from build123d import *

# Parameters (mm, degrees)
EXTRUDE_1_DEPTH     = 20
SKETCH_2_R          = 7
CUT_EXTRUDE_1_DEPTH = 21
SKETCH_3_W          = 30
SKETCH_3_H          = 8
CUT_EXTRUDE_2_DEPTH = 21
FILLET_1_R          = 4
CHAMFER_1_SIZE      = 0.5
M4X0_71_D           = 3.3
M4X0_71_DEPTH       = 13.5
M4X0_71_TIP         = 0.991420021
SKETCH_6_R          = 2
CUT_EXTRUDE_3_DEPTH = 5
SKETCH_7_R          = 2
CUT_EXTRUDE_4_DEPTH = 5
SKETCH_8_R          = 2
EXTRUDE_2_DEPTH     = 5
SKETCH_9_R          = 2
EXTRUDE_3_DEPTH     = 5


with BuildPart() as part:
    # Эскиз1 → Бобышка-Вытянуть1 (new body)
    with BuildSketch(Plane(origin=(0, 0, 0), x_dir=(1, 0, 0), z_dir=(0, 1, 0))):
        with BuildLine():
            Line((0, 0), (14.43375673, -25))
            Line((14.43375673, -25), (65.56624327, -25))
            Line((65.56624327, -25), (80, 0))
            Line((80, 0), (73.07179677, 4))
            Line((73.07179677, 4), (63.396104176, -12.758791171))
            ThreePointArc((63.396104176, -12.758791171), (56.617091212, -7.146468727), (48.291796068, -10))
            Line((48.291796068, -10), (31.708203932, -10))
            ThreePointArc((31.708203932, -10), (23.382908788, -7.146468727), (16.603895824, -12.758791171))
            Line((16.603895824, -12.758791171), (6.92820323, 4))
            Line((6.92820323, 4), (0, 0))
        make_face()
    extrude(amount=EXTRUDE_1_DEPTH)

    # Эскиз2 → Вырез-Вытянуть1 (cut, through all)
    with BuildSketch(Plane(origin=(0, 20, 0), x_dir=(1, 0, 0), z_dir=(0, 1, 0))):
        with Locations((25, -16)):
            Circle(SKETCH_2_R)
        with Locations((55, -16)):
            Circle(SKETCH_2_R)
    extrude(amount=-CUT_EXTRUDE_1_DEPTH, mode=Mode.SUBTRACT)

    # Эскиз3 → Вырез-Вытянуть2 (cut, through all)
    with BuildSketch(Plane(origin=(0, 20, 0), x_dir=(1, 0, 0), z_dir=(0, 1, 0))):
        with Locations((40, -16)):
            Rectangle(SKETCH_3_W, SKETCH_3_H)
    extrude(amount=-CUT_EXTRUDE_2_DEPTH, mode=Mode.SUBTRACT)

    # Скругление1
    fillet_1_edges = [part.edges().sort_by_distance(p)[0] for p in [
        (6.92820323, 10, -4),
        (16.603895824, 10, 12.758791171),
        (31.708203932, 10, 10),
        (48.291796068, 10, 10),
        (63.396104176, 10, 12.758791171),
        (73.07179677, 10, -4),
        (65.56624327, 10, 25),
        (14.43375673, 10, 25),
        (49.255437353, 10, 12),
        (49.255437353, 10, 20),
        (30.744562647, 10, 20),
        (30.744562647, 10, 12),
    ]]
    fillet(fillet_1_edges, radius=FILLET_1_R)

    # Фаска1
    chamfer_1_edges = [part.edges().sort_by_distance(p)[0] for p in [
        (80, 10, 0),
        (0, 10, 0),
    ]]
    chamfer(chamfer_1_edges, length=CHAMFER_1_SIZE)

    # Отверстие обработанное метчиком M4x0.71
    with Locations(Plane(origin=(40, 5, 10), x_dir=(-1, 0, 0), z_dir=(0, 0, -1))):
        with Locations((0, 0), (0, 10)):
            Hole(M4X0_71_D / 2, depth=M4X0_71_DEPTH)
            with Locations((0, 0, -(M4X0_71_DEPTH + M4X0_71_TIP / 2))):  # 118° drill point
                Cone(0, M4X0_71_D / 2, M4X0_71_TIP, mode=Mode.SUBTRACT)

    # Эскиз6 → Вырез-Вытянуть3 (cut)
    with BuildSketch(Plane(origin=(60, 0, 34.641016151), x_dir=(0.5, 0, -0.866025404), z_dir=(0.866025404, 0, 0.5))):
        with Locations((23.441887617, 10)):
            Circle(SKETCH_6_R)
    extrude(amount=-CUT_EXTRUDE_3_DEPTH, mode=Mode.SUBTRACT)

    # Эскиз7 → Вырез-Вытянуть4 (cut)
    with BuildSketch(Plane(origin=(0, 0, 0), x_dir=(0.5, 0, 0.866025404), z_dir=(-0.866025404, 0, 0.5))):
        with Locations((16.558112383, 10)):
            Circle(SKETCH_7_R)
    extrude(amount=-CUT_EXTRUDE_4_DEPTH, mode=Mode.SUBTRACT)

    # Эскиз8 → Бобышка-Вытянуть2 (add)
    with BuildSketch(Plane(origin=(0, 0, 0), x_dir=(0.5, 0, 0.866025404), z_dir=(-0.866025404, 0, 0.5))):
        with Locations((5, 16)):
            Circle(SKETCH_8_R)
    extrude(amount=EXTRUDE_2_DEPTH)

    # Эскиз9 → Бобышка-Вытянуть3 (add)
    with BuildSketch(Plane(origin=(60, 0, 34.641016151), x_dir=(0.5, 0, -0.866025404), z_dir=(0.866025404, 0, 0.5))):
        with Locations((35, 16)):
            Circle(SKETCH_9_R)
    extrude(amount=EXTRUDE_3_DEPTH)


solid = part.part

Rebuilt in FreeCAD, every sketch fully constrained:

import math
import FreeCAD as App
import Part
import Sketcher
from FreeCAD import Vector
Q = App.Units.Quantity


def edges_at(feature, points):
    """Names of the edges that pass closest to the given points."""
    edges = feature.Shape.Edges
    near = lambda p: min(range(len(edges)), key=lambda i: edges[i].distToShape(Part.Vertex(*p))[0])
    return sorted({f"Edge{near(p) + 1}" for p in points})

doc = App.newDocument("Part")
body = doc.addObject("PartDesign::Body", "Body")

sketch1 = doc.addObject("Sketcher::SketchObject", "Sketch")
body.addObject(sketch1)
sketch1.AttachmentSupport = (doc.XZ_Plane, [""])
sketch1.MapMode = "FlatFace"
sketch1.addGeometry(Part.LineSegment(Vector(0, 0, 0), Vector(14, 25, 0)), False)
sketch1.addGeometry(Part.LineSegment(Vector(14, 25, 0), Vector(66, 25, 0)), False)
sketch1.addGeometry(Part.LineSegment(Vector(66, 25, 0), Vector(80, 0, 0)), False)
sketch1.addGeometry(Part.LineSegment(Vector(80, 0, 0), Vector(73, -4, 0)), False)
sketch1.addGeometry(Part.LineSegment(Vector(73, -4, 0), Vector(63, 13, 0)), False)
sketch1.addGeometry(Part.ArcOfCircle(Part.Circle(Vector(55, 16, 0), Vector(0, 0, 1), 9), math.radians(-138), math.radians(-21)), False)
sketch1.addGeometry(Part.LineSegment(Vector(48, 10, 0), Vector(32, 10, 0)), False)
sketch1.addGeometry(Part.ArcOfCircle(Part.Circle(Vector(25, 16, 0), Vector(0, 0, 1), 9), math.radians(-159), math.radians(-42)), False)
sketch1.addGeometry(Part.LineSegment(Vector(17, 13, 0), Vector(7, -4, 0)), False)
sketch1.addGeometry(Part.LineSegment(Vector(7, -4, 0), Vector(0, 0, 0)), False)
sketch1.addConstraint(Sketcher.Constraint("Coincident", 0, 2, 1, 1))
sketch1.addConstraint(Sketcher.Constraint("Coincident", 1, 2, 2, 1))
sketch1.addConstraint(Sketcher.Constraint("Coincident", 2, 2, 3, 1))
sketch1.addConstraint(Sketcher.Constraint("Coincident", 3, 2, 4, 1))
sketch1.addConstraint(Sketcher.Constraint("Coincident", 4, 2, 5, 2))
sketch1.addConstraint(Sketcher.Constraint("Coincident", 5, 1, 6, 1))
sketch1.addConstraint(Sketcher.Constraint("Coincident", 6, 2, 7, 2))
sketch1.addConstraint(Sketcher.Constraint("Coincident", 7, 1, 8, 1))
sketch1.addConstraint(Sketcher.Constraint("Coincident", 8, 2, 9, 1))
sketch1.addConstraint(Sketcher.Constraint("Coincident", 9, 2, 0, 1))
sketch1.addConstraint(Sketcher.Constraint("Horizontal", 1))
sketch1.addConstraint(Sketcher.Constraint("Horizontal", 6))
sketch1.addConstraint(Sketcher.Constraint("Coincident", 9, 2, -1, 1))
sketch1.addConstraint(Sketcher.Constraint("Equal", 5, 7))
sketch1.addConstraint(Sketcher.Constraint("PointOnObject", 2, 2, -1))
sketch1.addConstraint(Sketcher.Constraint("Perpendicular", 2, 3))
sketch1.addConstraint(Sketcher.Constraint("Perpendicular", 3, 4))
sketch1.addConstraint(Sketcher.Constraint("Parallel", 0, 8))
sketch1.addConstraint(Sketcher.Constraint("Perpendicular", 8, 9))
sketch1.addConstraint(Sketcher.Constraint("Horizontal", 5, 3, 7, 3))
sketch1.addConstraint(Sketcher.Constraint("Horizontal", 4, 2, 7, 1))
sketch1.addConstraint(Sketcher.Constraint("Horizontal", 3, 2, 8, 2))
sketch1.addConstraint(Sketcher.Constraint("Equal", 0, 2))
sketch1.addConstraint(Sketcher.Constraint("Radius", 5, 9.0))
sketch1.addConstraint(Sketcher.Constraint("Angle", 0, Q("60 deg")))
sketch1.addConstraint(Sketcher.Constraint("Distance", 3, 8.0))
sketch1.addConstraint(Sketcher.Constraint("DistanceX", -1, 1, 5, 3, 55.0))
sketch1.addConstraint(Sketcher.Constraint("DistanceY", -1, 1, 5, 3, 16.0))
sketch1.addConstraint(Sketcher.Constraint("DistanceX", -1, 1, 7, 3, 25.0))
sketch1.addConstraint(Sketcher.Constraint("DistanceY", -1, 1, 0, 2, 25.0))
sketch1.addConstraint(Sketcher.Constraint("DistanceY", -1, 1, 5, 1, 10.0))
pad1 = doc.addObject("PartDesign::Pad", "Pad")
body.addObject(pad1)
pad1.Profile = sketch1
pad1.Length = 20
pad1.Reversed = True

sketch2 = doc.addObject("Sketcher::SketchObject", "Sketch001")
body.addObject(sketch2)
sketch2.AttachmentSupport = (doc.XZ_Plane, [""])
sketch2.MapMode = "FlatFace"
sketch2.AttachmentOffset = App.Placement(Vector(0, 0, -20), App.Rotation())
sketch2.addGeometry(Part.Circle(Vector(25, 16, 0), Vector(0, 0, 1), 7), False)
sketch2.addGeometry(Part.Circle(Vector(55, 16, 0), Vector(0, 0, 1), 7), False)
sketch2.addConstraint(Sketcher.Constraint("Equal", 0, 1))
sketch2.addConstraint(Sketcher.Constraint("Horizontal", 0, 3, 1, 3))
sketch2.addConstraint(Sketcher.Constraint("Diameter", 0, 14.0))
sketch2.addConstraint(Sketcher.Constraint("DistanceX", -1, 1, 0, 3, 25.0))
sketch2.addConstraint(Sketcher.Constraint("DistanceY", -1, 1, 0, 3, 16.0))
sketch2.addConstraint(Sketcher.Constraint("DistanceX", -1, 1, 1, 3, 55.0))
pocket1 = doc.addObject("PartDesign::Pocket", "Pocket")
body.addObject(pocket1)
pocket1.Profile = sketch2
pocket1.Type = "ThroughAll"
pocket1.Reversed = True

sketch3 = doc.addObject("Sketcher::SketchObject", "Sketch002")
body.addObject(sketch3)
sketch3.AttachmentSupport = (doc.XZ_Plane, [""])
sketch3.MapMode = "FlatFace"
sketch3.AttachmentOffset = App.Placement(Vector(0, 0, -20), App.Rotation())
sketch3.addGeometry(Part.LineSegment(Vector(25, 12, 0), Vector(25, 20, 0)), False)
sketch3.addGeometry(Part.LineSegment(Vector(25, 20, 0), Vector(55, 20, 0)), False)
sketch3.addGeometry(Part.LineSegment(Vector(55, 20, 0), Vector(55, 12, 0)), False)
sketch3.addGeometry(Part.LineSegment(Vector(55, 12, 0), Vector(25, 12, 0)), False)
sketch3.addConstraint(Sketcher.Constraint("Coincident", 0, 2, 1, 1))
sketch3.addConstraint(Sketcher.Constraint("Coincident", 1, 2, 2, 1))
sketch3.addConstraint(Sketcher.Constraint("Coincident", 2, 2, 3, 1))
sketch3.addConstraint(Sketcher.Constraint("Coincident", 3, 2, 0, 1))
sketch3.addConstraint(Sketcher.Constraint("Vertical", 0))
sketch3.addConstraint(Sketcher.Constraint("Horizontal", 1))
sketch3.addConstraint(Sketcher.Constraint("Vertical", 2))
sketch3.addConstraint(Sketcher.Constraint("Horizontal", 3))
sketch3.addConstraint(Sketcher.Constraint("DistanceX", 1, 1, 1, 2, 30.0))
sketch3.addConstraint(Sketcher.Constraint("DistanceY", 0, 1, 0, 2, 8.0))
sketch3.addConstraint(Sketcher.Constraint("DistanceX", -1, 1, 0, 2, 25.0))
sketch3.addConstraint(Sketcher.Constraint("DistanceY", -1, 1, 0, 2, 20.0))
pocket2 = doc.addObject("PartDesign::Pocket", "Pocket001")
body.addObject(pocket2)
pocket2.Profile = sketch3
pocket2.Type = "ThroughAll"
pocket2.Reversed = True
doc.recompute()

fillet = doc.addObject("PartDesign::Fillet", "Fillet")
body.addObject(fillet)
fillet.Base = (pocket2, edges_at(pocket2, [
    (6.928, 10, -4),
    (16.604, 10, 12.759),
    (31.708, 10, 10),
    (48.292, 10, 10),
    (63.396, 10, 12.759),
    (73.072, 10, -4),
    (65.566, 10, 25),
    (14.434, 10, 25),
    (49.255, 10, 12),
    (49.255, 10, 20),
    (30.745, 10, 20),
    (30.745, 10, 12),
]))
fillet.Radius = 4
doc.recompute()

chamfer = doc.addObject("PartDesign::Chamfer", "Chamfer")
body.addObject(chamfer)
chamfer.Base = (fillet, edges_at(fillet, [(80, 10, 0), (0, 10, 0)]))
chamfer.Size = 0.5

sketch4 = doc.addObject("Sketcher::SketchObject", "Sketch003")
body.addObject(sketch4)
sketch4.AttachmentSupport = (doc.XY_Plane, [""])
sketch4.MapMode = "FlatFace"
sketch4.AttachmentOffset = App.Placement(Vector(0, 0, 10), App.Rotation())
sketch4.addGeometry(Part.Circle(Vector(40, 5, 0), Vector(0, 0, 1), 1.6), False)
sketch4.addGeometry(Part.Circle(Vector(40, 15, 0), Vector(0, 0, 1), 1.6), False)
sketch4.addConstraint(Sketcher.Constraint("Equal", 0, 1))
sketch4.addConstraint(Sketcher.Constraint("Vertical", 0, 3, 1, 3))
sketch4.addConstraint(Sketcher.Constraint("Diameter", 0, 3.3))
sketch4.addConstraint(Sketcher.Constraint("DistanceX", -1, 1, 0, 3, 40.0))
sketch4.addConstraint(Sketcher.Constraint("DistanceY", -1, 1, 0, 3, 5.0))
sketch4.addConstraint(Sketcher.Constraint("DistanceY", -1, 1, 1, 3, 15.0))
doc.recompute()
hole = doc.addObject("PartDesign::Hole", "Hole")
body.addObject(hole)
hole.Profile = sketch4
hole.ThreadType = "None"
hole.Diameter = 3.3
hole.DepthType = "Dimension"
hole.Depth = 13.5
hole.DrillPoint = "Angled"
hole.DrillPointAngle = 118
hole.Reversed = True

sketch5 = doc.addObject("Sketcher::SketchObject", "Sketch004")
body.addObject(sketch5)
sketch5.Placement = App.Placement(Vector(60, 0, 34.641016), App.Rotation(Vector(0.5, 0, -0.866025404), Vector(0, 1, 0), Vector(0.866025404, 0, 0.5), "ZXY"))
sketch5.addGeometry(Part.Circle(Vector(23.4, 10, 0), Vector(0, 0, 1), 2), False)
sketch5.addConstraint(Sketcher.Constraint("Diameter", 0, 4.0))
sketch5.addConstraint(Sketcher.Constraint("DistanceY", -1, 1, 0, 3, 10.0))
sketch5.addConstraint(Sketcher.Constraint("DistanceX", -1, 1, 0, 3, 23.441888))
pocket3 = doc.addObject("PartDesign::Pocket", "Pocket002")
body.addObject(pocket3)
pocket3.Profile = sketch5
pocket3.Length = 5

sketch6 = doc.addObject("Sketcher::SketchObject", "Sketch005")
body.addObject(sketch6)
sketch6.Placement = App.Placement(Vector(0, 0, 0), App.Rotation(Vector(0.5, 0, 0.866025404), Vector(0, 1, 0), Vector(-0.866025404, 0, 0.5), "ZXY"))
sketch6.addGeometry(Part.Circle(Vector(16.6, 10, 0), Vector(0, 0, 1), 2), False)
sketch6.addConstraint(Sketcher.Constraint("Diameter", 0, 4.0))
sketch6.addConstraint(Sketcher.Constraint("DistanceY", -1, 1, 0, 3, 10.0))
sketch6.addConstraint(Sketcher.Constraint("DistanceX", -1, 1, 0, 3, 16.558112))
pocket4 = doc.addObject("PartDesign::Pocket", "Pocket003")
body.addObject(pocket4)
pocket4.Profile = sketch6
pocket4.Length = 5

sketch7 = doc.addObject("Sketcher::SketchObject", "Sketch006")
body.addObject(sketch7)
sketch7.Placement = App.Placement(Vector(0, 0, 0), App.Rotation(Vector(0.5, 0, 0.866025404), Vector(0, 1, 0), Vector(-0.866025404, 0, 0.5), "ZXY"))
sketch7.addGeometry(Part.Circle(Vector(5, 16, 0), Vector(0, 0, 1), 2), False)
sketch7.addConstraint(Sketcher.Constraint("Diameter", 0, 4.0))
sketch7.addConstraint(Sketcher.Constraint("DistanceX", -1, 1, 0, 3, 5.0))
sketch7.addConstraint(Sketcher.Constraint("DistanceY", -1, 1, 0, 3, 16.0))
pad2 = doc.addObject("PartDesign::Pad", "Pad001")
body.addObject(pad2)
pad2.Profile = sketch7
pad2.Length = 5

sketch8 = doc.addObject("Sketcher::SketchObject", "Sketch007")
body.addObject(sketch8)
sketch8.Placement = App.Placement(Vector(60, 0, 34.641016), App.Rotation(Vector(0.5, 0, -0.866025404), Vector(0, 1, 0), Vector(0.866025404, 0, 0.5), "ZXY"))
sketch8.addGeometry(Part.Circle(Vector(35, 16, 0), Vector(0, 0, 1), 2), False)
sketch8.addConstraint(Sketcher.Constraint("Diameter", 0, 4.0))
sketch8.addConstraint(Sketcher.Constraint("DistanceX", -1, 1, 0, 3, 35.0))
sketch8.addConstraint(Sketcher.Constraint("DistanceY", -1, 1, 0, 3, 16.0))
pad3 = doc.addObject("PartDesign::Pad", "Pad002")
body.addObject(pad3)
pad3.Profile = sketch8
pad3.Length = 5

doc.recompute()
